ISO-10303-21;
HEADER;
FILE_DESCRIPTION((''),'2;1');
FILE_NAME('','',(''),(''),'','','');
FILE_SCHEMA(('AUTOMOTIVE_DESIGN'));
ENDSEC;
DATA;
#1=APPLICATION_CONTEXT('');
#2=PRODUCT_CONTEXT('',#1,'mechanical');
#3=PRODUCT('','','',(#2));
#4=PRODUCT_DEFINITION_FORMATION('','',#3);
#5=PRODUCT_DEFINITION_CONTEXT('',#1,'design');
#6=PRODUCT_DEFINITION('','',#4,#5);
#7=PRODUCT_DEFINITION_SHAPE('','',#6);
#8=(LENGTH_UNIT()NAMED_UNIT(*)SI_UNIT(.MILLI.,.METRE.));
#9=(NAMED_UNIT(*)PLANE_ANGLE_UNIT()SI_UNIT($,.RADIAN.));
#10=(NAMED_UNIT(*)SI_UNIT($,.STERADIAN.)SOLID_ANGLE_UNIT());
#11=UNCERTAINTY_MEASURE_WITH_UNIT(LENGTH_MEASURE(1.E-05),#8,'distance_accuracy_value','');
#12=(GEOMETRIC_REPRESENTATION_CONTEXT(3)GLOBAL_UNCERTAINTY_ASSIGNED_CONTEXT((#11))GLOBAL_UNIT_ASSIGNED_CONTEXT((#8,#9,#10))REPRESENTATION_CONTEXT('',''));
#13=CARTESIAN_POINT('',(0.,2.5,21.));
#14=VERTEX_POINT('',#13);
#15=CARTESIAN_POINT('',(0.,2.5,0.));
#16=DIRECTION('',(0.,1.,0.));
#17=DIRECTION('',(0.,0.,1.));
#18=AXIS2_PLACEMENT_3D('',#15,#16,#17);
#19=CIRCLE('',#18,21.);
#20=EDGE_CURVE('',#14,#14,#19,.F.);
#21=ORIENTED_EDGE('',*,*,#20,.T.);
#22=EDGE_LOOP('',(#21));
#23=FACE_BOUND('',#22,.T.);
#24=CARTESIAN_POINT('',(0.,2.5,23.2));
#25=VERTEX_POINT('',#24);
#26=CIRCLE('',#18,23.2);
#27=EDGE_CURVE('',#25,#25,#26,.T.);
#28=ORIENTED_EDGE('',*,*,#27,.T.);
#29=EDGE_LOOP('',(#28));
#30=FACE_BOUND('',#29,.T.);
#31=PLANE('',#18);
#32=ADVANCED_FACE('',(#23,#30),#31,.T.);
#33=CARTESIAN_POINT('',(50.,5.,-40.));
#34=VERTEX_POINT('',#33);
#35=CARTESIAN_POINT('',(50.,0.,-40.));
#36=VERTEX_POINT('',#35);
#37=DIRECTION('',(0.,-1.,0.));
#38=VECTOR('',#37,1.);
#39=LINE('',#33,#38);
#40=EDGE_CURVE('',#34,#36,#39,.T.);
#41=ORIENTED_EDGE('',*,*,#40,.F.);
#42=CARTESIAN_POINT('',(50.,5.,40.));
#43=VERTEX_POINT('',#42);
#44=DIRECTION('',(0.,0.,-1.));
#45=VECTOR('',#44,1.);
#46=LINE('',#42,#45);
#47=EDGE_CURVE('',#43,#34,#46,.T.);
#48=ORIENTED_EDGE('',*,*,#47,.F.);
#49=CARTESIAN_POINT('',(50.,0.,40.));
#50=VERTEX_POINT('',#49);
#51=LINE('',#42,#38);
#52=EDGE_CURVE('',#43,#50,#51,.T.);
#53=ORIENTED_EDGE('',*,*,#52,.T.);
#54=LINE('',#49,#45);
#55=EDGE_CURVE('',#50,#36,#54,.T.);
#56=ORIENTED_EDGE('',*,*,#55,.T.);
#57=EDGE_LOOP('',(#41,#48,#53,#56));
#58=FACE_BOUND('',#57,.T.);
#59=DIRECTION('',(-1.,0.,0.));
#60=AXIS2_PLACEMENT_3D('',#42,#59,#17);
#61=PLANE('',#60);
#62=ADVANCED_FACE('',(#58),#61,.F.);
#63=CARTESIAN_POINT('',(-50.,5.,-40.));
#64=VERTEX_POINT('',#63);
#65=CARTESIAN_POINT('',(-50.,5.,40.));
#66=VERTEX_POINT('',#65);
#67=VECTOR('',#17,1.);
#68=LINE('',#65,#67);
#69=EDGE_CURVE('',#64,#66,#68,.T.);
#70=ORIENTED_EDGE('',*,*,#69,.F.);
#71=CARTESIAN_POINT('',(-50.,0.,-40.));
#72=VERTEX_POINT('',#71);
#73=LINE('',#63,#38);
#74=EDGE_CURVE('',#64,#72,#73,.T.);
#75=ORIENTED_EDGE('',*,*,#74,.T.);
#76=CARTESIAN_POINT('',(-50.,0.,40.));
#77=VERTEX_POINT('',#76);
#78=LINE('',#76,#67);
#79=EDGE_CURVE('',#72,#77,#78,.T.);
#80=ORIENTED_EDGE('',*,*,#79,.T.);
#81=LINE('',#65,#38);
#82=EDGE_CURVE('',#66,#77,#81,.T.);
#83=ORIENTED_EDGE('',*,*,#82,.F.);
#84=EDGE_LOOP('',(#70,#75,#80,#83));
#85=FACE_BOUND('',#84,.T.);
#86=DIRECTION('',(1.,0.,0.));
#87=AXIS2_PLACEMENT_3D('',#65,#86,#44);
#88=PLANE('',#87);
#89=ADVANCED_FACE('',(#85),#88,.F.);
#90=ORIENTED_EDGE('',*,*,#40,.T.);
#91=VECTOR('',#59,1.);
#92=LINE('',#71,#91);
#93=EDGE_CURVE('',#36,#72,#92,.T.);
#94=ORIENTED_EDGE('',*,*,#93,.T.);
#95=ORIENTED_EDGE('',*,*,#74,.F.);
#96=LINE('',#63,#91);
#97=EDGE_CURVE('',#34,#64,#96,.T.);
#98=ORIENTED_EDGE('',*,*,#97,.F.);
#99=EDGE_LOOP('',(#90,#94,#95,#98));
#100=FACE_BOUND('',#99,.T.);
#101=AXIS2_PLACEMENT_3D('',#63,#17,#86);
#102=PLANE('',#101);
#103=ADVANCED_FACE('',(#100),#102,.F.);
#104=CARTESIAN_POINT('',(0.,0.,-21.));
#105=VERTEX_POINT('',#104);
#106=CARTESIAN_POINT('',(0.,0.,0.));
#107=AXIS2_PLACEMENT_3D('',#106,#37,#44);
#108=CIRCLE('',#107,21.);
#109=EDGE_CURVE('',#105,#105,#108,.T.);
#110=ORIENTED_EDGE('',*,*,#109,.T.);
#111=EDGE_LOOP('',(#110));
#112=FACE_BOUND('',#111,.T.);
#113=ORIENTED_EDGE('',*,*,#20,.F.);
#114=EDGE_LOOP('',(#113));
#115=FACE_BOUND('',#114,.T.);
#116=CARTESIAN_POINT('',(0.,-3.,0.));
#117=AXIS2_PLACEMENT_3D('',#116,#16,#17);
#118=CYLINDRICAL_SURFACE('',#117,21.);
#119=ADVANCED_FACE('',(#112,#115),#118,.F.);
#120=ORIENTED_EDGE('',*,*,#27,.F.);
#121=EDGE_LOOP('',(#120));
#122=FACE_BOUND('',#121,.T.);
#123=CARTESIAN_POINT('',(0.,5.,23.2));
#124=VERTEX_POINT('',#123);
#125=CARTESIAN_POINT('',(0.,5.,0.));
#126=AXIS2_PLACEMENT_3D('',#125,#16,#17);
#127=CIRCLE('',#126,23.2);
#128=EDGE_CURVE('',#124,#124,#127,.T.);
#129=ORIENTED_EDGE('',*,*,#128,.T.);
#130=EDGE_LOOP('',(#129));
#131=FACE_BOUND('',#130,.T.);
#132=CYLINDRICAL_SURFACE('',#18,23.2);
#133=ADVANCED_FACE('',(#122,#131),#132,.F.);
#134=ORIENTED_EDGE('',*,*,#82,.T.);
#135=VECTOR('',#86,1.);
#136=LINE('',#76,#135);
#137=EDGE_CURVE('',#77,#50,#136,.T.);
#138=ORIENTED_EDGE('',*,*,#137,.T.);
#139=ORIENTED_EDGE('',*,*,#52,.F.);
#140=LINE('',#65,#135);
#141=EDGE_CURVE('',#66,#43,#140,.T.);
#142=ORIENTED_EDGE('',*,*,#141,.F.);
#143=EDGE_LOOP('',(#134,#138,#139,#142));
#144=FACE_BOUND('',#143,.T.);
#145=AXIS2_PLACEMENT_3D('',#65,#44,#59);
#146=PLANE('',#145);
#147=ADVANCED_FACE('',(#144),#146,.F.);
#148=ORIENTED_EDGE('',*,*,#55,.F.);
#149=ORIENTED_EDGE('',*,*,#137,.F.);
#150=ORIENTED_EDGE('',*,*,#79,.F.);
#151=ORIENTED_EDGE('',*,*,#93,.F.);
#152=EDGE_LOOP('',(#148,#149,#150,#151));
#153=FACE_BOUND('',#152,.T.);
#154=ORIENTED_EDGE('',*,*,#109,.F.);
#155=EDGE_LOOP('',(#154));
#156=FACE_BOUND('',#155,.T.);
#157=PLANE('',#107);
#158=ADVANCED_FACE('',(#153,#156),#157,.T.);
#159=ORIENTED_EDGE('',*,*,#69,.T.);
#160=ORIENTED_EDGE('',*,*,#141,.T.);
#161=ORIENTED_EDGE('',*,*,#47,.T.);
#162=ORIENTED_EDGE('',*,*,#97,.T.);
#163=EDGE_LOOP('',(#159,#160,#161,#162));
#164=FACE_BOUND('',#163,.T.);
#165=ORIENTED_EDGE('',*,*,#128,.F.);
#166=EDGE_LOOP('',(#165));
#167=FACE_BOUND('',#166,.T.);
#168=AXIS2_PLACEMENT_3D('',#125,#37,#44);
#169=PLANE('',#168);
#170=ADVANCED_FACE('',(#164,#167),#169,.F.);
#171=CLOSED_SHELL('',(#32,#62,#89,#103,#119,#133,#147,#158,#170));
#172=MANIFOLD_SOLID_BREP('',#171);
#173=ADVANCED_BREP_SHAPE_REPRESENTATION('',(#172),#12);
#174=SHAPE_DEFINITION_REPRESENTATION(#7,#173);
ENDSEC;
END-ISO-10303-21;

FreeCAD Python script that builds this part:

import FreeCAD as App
import Part
import Sketcher


def add_polygon(sketch, points):
    """Adds a closed chain of lines whose ends are joined by coincident constraints."""
    first, n = sketch.GeometryCount, len(points)
    for a, b in zip(points, points[1:] + points[:1]):
        sketch.addGeometry(Part.LineSegment(App.Vector(*a, 0), App.Vector(*b, 0)), False)
    for i in range(n):
        sketch.addConstraint(Sketcher.Constraint("Coincident", first + i, 2, first + (i + 1) % n, 1))

doc = App.newDocument("Part")
body = doc.addObject("PartDesign::Body", "Body")

sketch1 = body.newObject("Sketcher::SketchObject", "Sketch")
sketch1.AttachmentSupport = (doc.getObject("XZ_Plane"), [""])
sketch1.MapMode = "FlatFace"
add_polygon(sketch1, [(-50, -40), (-50, 40), (50, 40), (50, -40)])
sketch1.addConstraint([
    Sketcher.Constraint("Vertical", 0),
    Sketcher.Constraint("Horizontal", 1),
    Sketcher.Constraint("Vertical", 2),
    Sketcher.Constraint("Horizontal", 3),
    Sketcher.Constraint("Symmetric", 0, 2, 2, 2, -1, 1),
    Sketcher.Constraint("DistanceX", 1, 1, 1, 2, 100.0),
    Sketcher.Constraint("DistanceY", 0, 1, 0, 2, 80.0),
])
pad1 = body.newObject("PartDesign::Pad", "Pad")
pad1.Profile = sketch1
pad1.Length = 5
pad1.Reversed = True

sketch2 = body.newObject("Sketcher::SketchObject", "Sketch001")
sketch2.AttachmentSupport = (doc.getObject("XZ_Plane"), [""])
sketch2.MapMode = "FlatFace"
sketch2.AttachmentOffset = App.Placement(App.Vector(0, 0, -5), App.Rotation())
sketch2.addGeometry(Part.Circle(App.Vector(0, 0, 0), App.Vector(0, 0, 1), 21), False)
sketch2.addConstraint([
    Sketcher.Constraint("Coincident", 0, 3, -1, 1),
    Sketcher.Constraint("Diameter", 0, 42.0),
])
pocket1 = body.newObject("PartDesign::Pocket", "Pocket")
pocket1.Profile = sketch2
pocket1.Length = 8
pocket1.Reversed = True

sketch3 = body.newObject("Sketcher::SketchObject", "Sketch002")
sketch3.AttachmentSupport = (doc.getObject("XZ_Plane"), [""])
sketch3.MapMode = "FlatFace"
sketch3.AttachmentOffset = App.Placement(App.Vector(0, 0, -5), App.Rotation())
sketch3.addGeometry(Part.Circle(App.Vector(0, 0, 0), App.Vector(0, 0, 1), 23), False)
sketch3.addConstraint([
    Sketcher.Constraint("Coincident", 0, 3, -1, 1),
    Sketcher.Constraint("Diameter", 0, 46.4),
])
pocket2 = body.newObject("PartDesign::Pocket", "Pocket001")
pocket2.Profile = sketch3
pocket2.Length = 2.5
pocket2.Reversed = True

doc.recompute()
